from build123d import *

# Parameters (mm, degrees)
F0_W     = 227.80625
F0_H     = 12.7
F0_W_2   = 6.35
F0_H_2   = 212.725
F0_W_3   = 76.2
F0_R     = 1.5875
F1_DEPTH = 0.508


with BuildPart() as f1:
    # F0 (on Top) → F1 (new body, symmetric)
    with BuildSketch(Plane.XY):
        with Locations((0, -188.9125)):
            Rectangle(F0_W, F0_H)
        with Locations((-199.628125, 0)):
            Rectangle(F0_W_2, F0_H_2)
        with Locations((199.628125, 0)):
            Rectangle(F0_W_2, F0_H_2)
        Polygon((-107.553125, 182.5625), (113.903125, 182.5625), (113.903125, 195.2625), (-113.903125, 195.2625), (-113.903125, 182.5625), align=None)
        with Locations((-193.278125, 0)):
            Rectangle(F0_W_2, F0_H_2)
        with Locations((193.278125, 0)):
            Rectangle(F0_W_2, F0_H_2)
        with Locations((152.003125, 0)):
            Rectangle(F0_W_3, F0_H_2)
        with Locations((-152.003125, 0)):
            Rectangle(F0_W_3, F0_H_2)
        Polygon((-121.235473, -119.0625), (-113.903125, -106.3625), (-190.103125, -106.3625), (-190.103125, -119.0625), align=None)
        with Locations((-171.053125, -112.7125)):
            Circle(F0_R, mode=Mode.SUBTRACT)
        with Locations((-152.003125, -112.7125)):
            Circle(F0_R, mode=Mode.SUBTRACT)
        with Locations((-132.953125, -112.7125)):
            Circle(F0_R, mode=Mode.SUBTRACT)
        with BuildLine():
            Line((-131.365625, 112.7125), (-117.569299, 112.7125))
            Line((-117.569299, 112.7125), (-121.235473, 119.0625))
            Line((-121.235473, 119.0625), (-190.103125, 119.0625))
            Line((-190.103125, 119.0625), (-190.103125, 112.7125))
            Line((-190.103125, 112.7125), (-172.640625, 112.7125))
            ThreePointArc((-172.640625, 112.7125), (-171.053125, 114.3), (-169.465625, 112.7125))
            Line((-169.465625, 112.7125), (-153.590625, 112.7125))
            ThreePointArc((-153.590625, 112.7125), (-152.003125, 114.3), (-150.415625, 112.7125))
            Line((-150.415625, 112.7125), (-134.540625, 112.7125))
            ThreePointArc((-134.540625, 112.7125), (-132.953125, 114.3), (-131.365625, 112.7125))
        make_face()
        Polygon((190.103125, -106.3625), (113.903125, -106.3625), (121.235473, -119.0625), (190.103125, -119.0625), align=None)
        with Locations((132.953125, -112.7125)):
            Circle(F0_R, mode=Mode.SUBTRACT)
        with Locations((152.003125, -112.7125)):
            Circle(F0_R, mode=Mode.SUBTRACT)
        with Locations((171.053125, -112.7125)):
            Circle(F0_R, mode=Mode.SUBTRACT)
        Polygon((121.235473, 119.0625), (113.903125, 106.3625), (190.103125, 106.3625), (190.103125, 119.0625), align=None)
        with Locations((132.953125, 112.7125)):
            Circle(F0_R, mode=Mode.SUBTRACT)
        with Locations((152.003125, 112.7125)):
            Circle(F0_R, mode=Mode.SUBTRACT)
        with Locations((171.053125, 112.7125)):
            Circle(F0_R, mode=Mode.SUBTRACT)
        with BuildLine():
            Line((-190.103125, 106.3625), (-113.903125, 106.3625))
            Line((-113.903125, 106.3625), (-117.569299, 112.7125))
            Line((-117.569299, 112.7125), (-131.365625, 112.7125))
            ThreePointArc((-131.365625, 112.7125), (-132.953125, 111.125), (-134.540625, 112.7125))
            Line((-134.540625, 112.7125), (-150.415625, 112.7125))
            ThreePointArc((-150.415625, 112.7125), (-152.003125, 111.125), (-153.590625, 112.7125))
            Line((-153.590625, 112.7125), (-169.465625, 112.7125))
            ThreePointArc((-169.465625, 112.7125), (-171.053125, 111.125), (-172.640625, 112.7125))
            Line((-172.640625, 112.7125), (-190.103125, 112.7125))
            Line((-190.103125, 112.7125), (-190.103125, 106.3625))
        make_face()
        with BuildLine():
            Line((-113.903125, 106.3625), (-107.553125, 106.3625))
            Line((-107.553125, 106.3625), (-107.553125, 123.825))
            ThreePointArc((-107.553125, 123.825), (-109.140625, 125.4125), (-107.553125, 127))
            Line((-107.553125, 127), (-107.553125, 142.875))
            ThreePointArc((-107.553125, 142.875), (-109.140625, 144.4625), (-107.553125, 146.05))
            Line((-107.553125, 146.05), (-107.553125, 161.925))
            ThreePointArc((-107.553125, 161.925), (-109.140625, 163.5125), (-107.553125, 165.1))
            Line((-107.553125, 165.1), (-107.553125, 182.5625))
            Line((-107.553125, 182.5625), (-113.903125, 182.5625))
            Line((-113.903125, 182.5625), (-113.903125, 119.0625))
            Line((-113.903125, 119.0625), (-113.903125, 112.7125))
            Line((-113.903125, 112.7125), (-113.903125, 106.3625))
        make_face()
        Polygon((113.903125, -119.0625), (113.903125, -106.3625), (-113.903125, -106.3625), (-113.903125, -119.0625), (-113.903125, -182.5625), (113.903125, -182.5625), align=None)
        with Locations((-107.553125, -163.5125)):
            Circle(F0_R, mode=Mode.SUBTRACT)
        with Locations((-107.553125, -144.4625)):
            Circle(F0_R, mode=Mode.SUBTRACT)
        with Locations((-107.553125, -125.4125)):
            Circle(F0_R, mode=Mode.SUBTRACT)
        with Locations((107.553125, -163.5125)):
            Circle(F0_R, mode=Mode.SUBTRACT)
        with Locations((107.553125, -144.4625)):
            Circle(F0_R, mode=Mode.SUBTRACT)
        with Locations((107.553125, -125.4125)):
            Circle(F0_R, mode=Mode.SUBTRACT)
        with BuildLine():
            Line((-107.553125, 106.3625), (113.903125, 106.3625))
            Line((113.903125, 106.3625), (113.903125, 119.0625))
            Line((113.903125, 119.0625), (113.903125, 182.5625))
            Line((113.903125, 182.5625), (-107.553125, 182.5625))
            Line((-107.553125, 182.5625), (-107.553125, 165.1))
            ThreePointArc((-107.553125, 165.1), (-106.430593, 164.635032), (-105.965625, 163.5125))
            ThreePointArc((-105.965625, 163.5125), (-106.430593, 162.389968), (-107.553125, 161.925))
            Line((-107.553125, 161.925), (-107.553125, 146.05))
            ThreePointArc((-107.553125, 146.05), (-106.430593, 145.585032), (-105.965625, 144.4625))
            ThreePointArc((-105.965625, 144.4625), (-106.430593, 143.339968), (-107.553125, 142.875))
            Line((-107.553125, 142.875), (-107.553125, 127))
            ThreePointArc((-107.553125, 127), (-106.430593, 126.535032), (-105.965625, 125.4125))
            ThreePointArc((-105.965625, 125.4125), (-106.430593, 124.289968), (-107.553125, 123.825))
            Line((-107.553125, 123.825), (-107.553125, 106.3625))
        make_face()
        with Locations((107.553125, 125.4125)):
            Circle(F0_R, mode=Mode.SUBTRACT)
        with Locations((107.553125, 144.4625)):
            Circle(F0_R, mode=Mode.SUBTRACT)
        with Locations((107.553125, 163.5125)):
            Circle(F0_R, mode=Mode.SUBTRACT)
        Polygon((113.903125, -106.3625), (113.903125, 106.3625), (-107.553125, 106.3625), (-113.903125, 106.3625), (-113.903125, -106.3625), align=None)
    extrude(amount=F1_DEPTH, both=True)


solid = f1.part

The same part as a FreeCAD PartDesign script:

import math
import FreeCAD as App
import Part
import Sketcher
Q = App.Units.Quantity

doc = App.newDocument("Part")
body = doc.addObject("PartDesign::Body", "Body")

sketch1 = body.newObject("Sketcher::SketchObject", "Sketch")
sketch1.AttachmentSupport = (doc.getObject("XY_Plane"), [""])
sketch1.MapMode = "FlatFace"
sketch1.addGeometry(Part.LineSegment(App.Vector(-113.9, -195.3, 0), App.Vector(113.9, -195.3, 0)), False)
sketch1.addGeometry(Part.LineSegment(App.Vector(113.9, -195.3, 0), App.Vector(113.9, -106.4, 0)), False)
sketch1.addGeometry(Part.LineSegment(App.Vector(113.9, -106.4, 0), App.Vector(121.2, -119.1, 0)), False)
sketch1.addGeometry(Part.LineSegment(App.Vector(121.2, -119.1, 0), App.Vector(190.1, -119.1, 0)), False)
sketch1.addGeometry(Part.LineSegment(App.Vector(190.1, -119.1, 0), App.Vector(190.1, -106.4, 0)), False)
sketch1.addGeometry(Part.LineSegment(App.Vector(190.1, -106.4, 0), App.Vector(202.8, -106.4, 0)), False)
sketch1.addGeometry(Part.LineSegment(App.Vector(202.8, -106.4, 0), App.Vector(202.8, 106.4, 0)), False)
sketch1.addGeometry(Part.LineSegment(App.Vector(202.8, 106.4, 0), App.Vector(190.1, 106.4, 0)), False)
sketch1.addGeometry(Part.LineSegment(App.Vector(190.1, 106.4, 0), App.Vector(190.1, 119.1, 0)), False)
sketch1.addGeometry(Part.LineSegment(App.Vector(190.1, 119.1, 0), App.Vector(121.2, 119.1, 0)), False)
sketch1.addGeometry(Part.LineSegment(App.Vector(121.2, 119.1, 0), App.Vector(113.9, 106.4, 0)), False)
sketch1.addGeometry(Part.LineSegment(App.Vector(113.9, 106.4, 0), App.Vector(113.9, 195.3, 0)), False)
sketch1.addGeometry(Part.LineSegment(App.Vector(113.9, 195.3, 0), App.Vector(-113.9, 195.3, 0)), False)
sketch1.addGeometry(Part.LineSegment(App.Vector(-113.9, 195.3, 0), App.Vector(-113.9, 106.4, 0)), False)
sketch1.addGeometry(Part.LineSegment(App.Vector(-113.9, 106.4, 0), App.Vector(-121.2, 119.1, 0)), False)
sketch1.addGeometry(Part.LineSegment(App.Vector(-121.2, 119.1, 0), App.Vector(-190.1, 119.1, 0)), False)
sketch1.addGeometry(Part.LineSegment(App.Vector(-190.1, 119.1, 0), App.Vector(-190.1, 106.4, 0)), False)
sketch1.addGeometry(Part.LineSegment(App.Vector(-190.1, 106.4, 0), App.Vector(-202.8, 106.4, 0)), False)
sketch1.addGeometry(Part.LineSegment(App.Vector(-202.8, 106.4, 0), App.Vector(-202.8, -106.4, 0)), False)
sketch1.addGeometry(Part.LineSegment(App.Vector(-202.8, -106.4, 0), App.Vector(-190.1, -106.4, 0)), False)
sketch1.addGeometry(Part.LineSegment(App.Vector(-190.1, -106.4, 0), App.Vector(-190.1, -119.1, 0)), False)
sketch1.addGeometry(Part.LineSegment(App.Vector(-190.1, -119.1, 0), App.Vector(-121.2, -119.1, 0)), False)
sketch1.addGeometry(Part.LineSegment(App.Vector(-121.2, -119.1, 0), App.Vector(-113.9, -106.4, 0)), False)
sketch1.addGeometry(Part.LineSegment(App.Vector(-113.9, -106.4, 0), App.Vector(-113.9, -195.3, 0)), False)
sketch1.addGeometry(Part.Circle(App.Vector(-107.6, -163.5, 0), App.Vector(0, 0, 1), 1.6), False)
sketch1.addGeometry(Part.Circle(App.Vector(-107.6, -144.5, 0), App.Vector(0, 0, 1), 1.6), False)
sketch1.addGeometry(Part.Circle(App.Vector(107.6, -163.5, 0), App.Vector(0, 0, 1), 1.6), False)
sketch1.addGeometry(Part.Circle(App.Vector(107.6, -144.5, 0), App.Vector(0, 0, 1), 1.6), False)
sketch1.addGeometry(Part.Circle(App.Vector(-107.6, -125.4, 0), App.Vector(0, 0, 1), 1.6), False)
sketch1.addGeometry(Part.Circle(App.Vector(107.6, -125.4, 0), App.Vector(0, 0, 1), 1.6), False)
sketch1.addGeometry(Part.Circle(App.Vector(171.1, 112.7, 0), App.Vector(0, 0, 1), 1.6), False)
sketch1.addGeometry(Part.Circle(App.Vector(133, -112.7, 0), App.Vector(0, 0, 1), 1.6), False)
sketch1.addGeometry(Part.Circle(App.Vector(152, -112.7, 0), App.Vector(0, 0, 1), 1.6), False)
sketch1.addGeometry(Part.Circle(App.Vector(171.1, -112.7, 0), App.Vector(0, 0, 1), 1.6), False)
sketch1.addGeometry(Part.Circle(App.Vector(133, 112.7, 0), App.Vector(0, 0, 1), 1.6), False)
sketch1.addGeometry(Part.Circle(App.Vector(152, 112.7, 0), App.Vector(0, 0, 1), 1.6), False)
sketch1.addGeometry(Part.Circle(App.Vector(107.6, 144.5, 0), App.Vector(0, 0, 1), 1.6), False)
sketch1.addGeometry(Part.Circle(App.Vector(107.6, 163.5, 0), App.Vector(0, 0, 1), 1.6), False)
sketch1.addGeometry(Part.ArcOfCircle(Part.Circle(App.Vector(-107.6, 125.4, 0), App.Vector(0, 0, 1), 1.6), math.radians(90), math.radians(270)), False)
sketch1.addGeometry(Part.ArcOfCircle(Part.Circle(App.Vector(-107.6, 125.4, 0), App.Vector(0, 0, 1), 1.6), math.radians(0), math.radians(90)), False)
sketch1.addGeometry(Part.ArcOfCircle(Part.Circle(App.Vector(-107.6, 125.4, 0), App.Vector(0, 0, 1), 1.6), math.radians(-90), math.radians(0)), False)
sketch1.addGeometry(Part.Circle(App.Vector(107.6, 125.4, 0), App.Vector(0, 0, 1), 1.6), False)
sketch1.addGeometry(Part.ArcOfCircle(Part.Circle(App.Vector(-107.6, 144.5, 0), App.Vector(0, 0, 1), 1.6), math.radians(90), math.radians(270)), False)
sketch1.addGeometry(Part.ArcOfCircle(Part.Circle(App.Vector(-107.6, 144.5, 0), App.Vector(0, 0, 1), 1.6), math.radians(0), math.radians(90)), False)
sketch1.addGeometry(Part.ArcOfCircle(Part.Circle(App.Vector(-107.6, 144.5, 0), App.Vector(0, 0, 1), 1.6), math.radians(-90), math.radians(0)), False)
sketch1.addGeometry(Part.ArcOfCircle(Part.Circle(App.Vector(-107.6, 163.5, 0), App.Vector(0, 0, 1), 1.6), math.radians(90), math.radians(270)), False)
sketch1.addGeometry(Part.ArcOfCircle(Part.Circle(App.Vector(-107.6, 163.5, 0), App.Vector(0, 0, 1), 1.6), math.radians(0), math.radians(90)), False)
sketch1.addGeometry(Part.ArcOfCircle(Part.Circle(App.Vector(-107.6, 163.5, 0), App.Vector(0, 0, 1), 1.6), math.radians(-90), math.radians(0)), False)
sketch1.addGeometry(Part.Circle(App.Vector(-171.1, 112.7, 0), App.Vector(0, 0, 1), 1.6), False)
sketch1.addGeometry(Part.Circle(App.Vector(-171.1, -112.7, 0), App.Vector(0, 0, 1), 1.6), False)
sketch1.addGeometry(Part.Circle(App.Vector(-152, -112.7, 0), App.Vector(0, 0, 1), 1.6), False)
sketch1.addGeometry(Part.Circle(App.Vector(-133, -112.7, 0), App.Vector(0, 0, 1), 1.6), False)
sketch1.addGeometry(Part.Circle(App.Vector(-133, 112.7, 0), App.Vector(0, 0, 1), 1.6), False)
sketch1.addGeometry(Part.Circle(App.Vector(-152, 112.7, 0), App.Vector(0, 0, 1), 1.6), False)
sketch1.addConstraint(Sketcher.Constraint("Coincident", 0, 2, 1, 1))
sketch1.addConstraint(Sketcher.Constraint("Coincident", 1, 2, 2, 1))
sketch1.addConstraint(Sketcher.Constraint("Coincident", 2, 2, 3, 1))
sketch1.addConstraint(Sketcher.Constraint("Coincident", 3, 2, 4, 1))
sketch1.addConstraint(Sketcher.Constraint("Coincident", 4, 2, 5, 1))
sketch1.addConstraint(Sketcher.Constraint("Coincident", 5, 2, 6, 1))
sketch1.addConstraint(Sketcher.Constraint("Coincident", 6, 2, 7, 1))
sketch1.addConstraint(Sketcher.Constraint("Coincident", 7, 2, 8, 1))
sketch1.addConstraint(Sketcher.Constraint("Coincident", 8, 2, 9, 1))
sketch1.addConstraint(Sketcher.Constraint("Coincident", 9, 2, 10, 1))
sketch1.addConstraint(Sketcher.Constraint("Coincident", 10, 2, 11, 1))
sketch1.addConstraint(Sketcher.Constraint("Coincident", 11, 2, 12, 1))
sketch1.addConstraint(Sketcher.Constraint("Coincident", 12, 2, 13, 1))
sketch1.addConstraint(Sketcher.Constraint("Coincident", 13, 2, 14, 1))
sketch1.addConstraint(Sketcher.Constraint("Coincident", 14, 2, 15, 1))
sketch1.addConstraint(Sketcher.Constraint("Coincident", 15, 2, 16, 1))
sketch1.addConstraint(Sketcher.Constraint("Coincident", 16, 2, 17, 1))
sketch1.addConstraint(Sketcher.Constraint("Coincident", 17, 2, 18, 1))
sketch1.addConstraint(Sketcher.Constraint("Coincident", 18, 2, 19, 1))
sketch1.addConstraint(Sketcher.Constraint("Coincident", 19, 2, 20, 1))
sketch1.addConstraint(Sketcher.Constraint("Coincident", 20, 2, 21, 1))
sketch1.addConstraint(Sketcher.Constraint("Coincident", 21, 2, 22, 1))
sketch1.addConstraint(Sketcher.Constraint("Coincident", 22, 2, 23, 1))
sketch1.addConstraint(Sketcher.Constraint("Coincident", 23, 2, 0, 1))
sketch1.addConstraint(Sketcher.Constraint("Tangent", 38, 1, 39, 2))
sketch1.addConstraint(Sketcher.Constraint("Tangent", 39, 1, 40, 2))
sketch1.addConstraint(Sketcher.Constraint("Tangent", 40, 1, 38, 2))
sketch1.addConstraint(Sketcher.Constraint("Tangent", 42, 1, 43, 2))
sketch1.addConstraint(Sketcher.Constraint("Tangent", 43, 1, 44, 2))
sketch1.addConstraint(Sketcher.Constraint("Tangent", 44, 1, 42, 2))
sketch1.addConstraint(Sketcher.Constraint("Tangent", 45, 1, 46, 2))
sketch1.addConstraint(Sketcher.Constraint("Tangent", 46, 1, 47, 2))
sketch1.addConstraint(Sketcher.Constraint("Tangent", 47, 1, 45, 2))
sketch1.addConstraint(Sketcher.Constraint("Horizontal", 0))
sketch1.addConstraint(Sketcher.Constraint("Vertical", 1))
sketch1.addConstraint(Sketcher.Constraint("Horizontal", 3))
sketch1.addConstraint(Sketcher.Constraint("Vertical", 4))
sketch1.addConstraint(Sketcher.Constraint("Horizontal", 5))
sketch1.addConstraint(Sketcher.Constraint("Vertical", 6))
sketch1.addConstraint(Sketcher.Constraint("Horizontal", 7))
sketch1.addConstraint(Sketcher.Constraint("Vertical", 8))
sketch1.addConstraint(Sketcher.Constraint("Horizontal", 9))
sketch1.addConstraint(Sketcher.Constraint("Vertical", 11))
sketch1.addConstraint(Sketcher.Constraint("Horizontal", 12))
sketch1.addConstraint(Sketcher.Constraint("Vertical", 13))
sketch1.addConstraint(Sketcher.Constraint("Horizontal", 15))
sketch1.addConstraint(Sketcher.Constraint("Vertical", 16))
sketch1.addConstraint(Sketcher.Constraint("Horizontal", 17))
sketch1.addConstraint(Sketcher.Constraint("Vertical", 18))
sketch1.addConstraint(Sketcher.Constraint("Horizontal", 19))
sketch1.addConstraint(Sketcher.Constraint("Vertical", 20))
sketch1.addConstraint(Sketcher.Constraint("Horizontal", 21))
sketch1.addConstraint(Sketcher.Constraint("Vertical", 23))
sketch1.addConstraint(Sketcher.Constraint("Equal", 24, 25))
sketch1.addConstraint(Sketcher.Constraint("Equal", 25, 26))
sketch1.addConstraint(Sketcher.Constraint("Equal", 26, 27))
sketch1.addConstraint(Sketcher.Constraint("Equal", 27, 28))
sketch1.addConstraint(Sketcher.Constraint("Equal", 28, 29))
sketch1.addConstraint(Sketcher.Constraint("Equal", 29, 30))
sketch1.addConstraint(Sketcher.Constraint("Equal", 30, 31))
sketch1.addConstraint(Sketcher.Constraint("Equal", 31, 32))
sketch1.addConstraint(Sketcher.Constraint("Equal", 32, 33))
sketch1.addConstraint(Sketcher.Constraint("Equal", 33, 34))
sketch1.addConstraint(Sketcher.Constraint("Equal", 34, 35))
sketch1.addConstraint(Sketcher.Constraint("Equal", 35, 36))
sketch1.addConstraint(Sketcher.Constraint("Equal", 36, 37))
sketch1.addConstraint(Sketcher.Constraint("Equal", 37, 38))
sketch1.addConstraint(Sketcher.Constraint("Equal", 40, 41))
sketch1.addConstraint(Sketcher.Constraint("Equal", 41, 42))
sketch1.addConstraint(Sketcher.Constraint("Equal", 44, 45))
sketch1.addConstraint(Sketcher.Constraint("Equal", 47, 48))
sketch1.addConstraint(Sketcher.Constraint("Equal", 48, 49))
sketch1.addConstraint(Sketcher.Constraint("Equal", 49, 50))
sketch1.addConstraint(Sketcher.Constraint("Equal", 50, 51))
sketch1.addConstraint(Sketcher.Constraint("Equal", 51, 52))
sketch1.addConstraint(Sketcher.Constraint("Equal", 52, 53))
sketch1.addConstraint(Sketcher.Constraint("Symmetric", 25, 3, 36, 3, -1, 1))
sketch1.addConstraint(Sketcher.Constraint("Symmetric", 24, 3, 37, 3, -1, 1))
sketch1.addConstraint(Sketcher.Constraint("Symmetric", 29, 3, 38, 3, -1, 1))
sketch1.addConstraint(Sketcher.Constraint("Symmetric", 28, 3, 41, 3, -1, 1))
sketch1.addConstraint(Sketcher.Constraint("Symmetric", 27, 3, 42, 3, -1, 1))
sketch1.addConstraint(Sketcher.Constraint("Symmetric", 26, 3, 45, 3, -1, 1))
sketch1.addConstraint(Sketcher.Constraint("Symmetric", 33, 3, 48, 3, -1, 1))
sketch1.addConstraint(Sketcher.Constraint("Symmetric", 30, 3, 49, 3, -1, 1))
sketch1.addConstraint(Sketcher.Constraint("Symmetric", 35, 3, 50, 3, -1, 1))
sketch1.addConstraint(Sketcher.Constraint("Symmetric", 34, 3, 51, 3, -1, 1))
sketch1.addConstraint(Sketcher.Constraint("Symmetric", 31, 3, 52, 3, -1, 1))
sketch1.addConstraint(Sketcher.Constraint("Symmetric", 32, 3, 53, 3, -1, 1))
sketch1.addConstraint(Sketcher.Constraint("Symmetric", 0, 2, 12, 2, -1, 1))
sketch1.addConstraint(Sketcher.Constraint("Symmetric", 2, 2, 14, 2, -1, 1))
sketch1.addConstraint(Sketcher.Constraint("Symmetric", 4, 2, 16, 2, -1, 1))
sketch1.addConstraint(Sketcher.Constraint("Symmetric", 6, 2, 18, 2, -1, 1))
sketch1.addConstraint(Sketcher.Constraint("Symmetric", 8, 2, 20, 2, -1, 1))
sketch1.addConstraint(Sketcher.Constraint("Symmetric", 10, 2, 22, 2, -1, 1))
sketch1.addConstraint(Sketcher.Constraint("Symmetric", 24, 3, 26, 3, -2))
sketch1.addConstraint(Sketcher.Constraint("Symmetric", 25, 3, 27, 3, -2))
sketch1.addConstraint(Sketcher.Constraint("Symmetric", 28, 3, 29, 3, -2))
sketch1.addConstraint(Sketcher.Constraint("Symmetric", 30, 3, 48, 3, -2))
sketch1.addConstraint(Sketcher.Constraint("Symmetric", 32, 3, 50, 3, -2))
sketch1.addConstraint(Sketcher.Constraint("Symmetric", 31, 3, 51, 3, -2))
sketch1.addConstraint(Sketcher.Constraint("Symmetric", 10, 2, 13, 2, -2))
sketch1.addConstraint(Sketcher.Constraint("Symmetric", 9, 2, 14, 2, -2))
sketch1.addConstraint(Sketcher.Constraint("Symmetric", 7, 2, 16, 2, -2))
sketch1.addConstraint(Sketcher.Constraint("Parallel", 2, 14))
sketch1.addConstraint(Sketcher.Constraint("Parallel", 10, 22))
sketch1.addConstraint(Sketcher.Constraint("Horizontal", 31, 3, 32, 3))
sketch1.addConstraint(Sketcher.Constraint("Horizontal", 32, 3, 33, 3))
sketch1.addConstraint(Sketcher.Constraint("Horizontal", 1, 2, 4, 2))
sketch1.addConstraint(Sketcher.Constraint("Horizontal", 41, 3, 39, 1))
sketch1.addConstraint(Sketcher.Constraint("Horizontal", 44, 3, 43, 1))
sketch1.addConstraint(Sketcher.Constraint("Horizontal", 47, 3, 46, 1))
sketch1.addConstraint(Sketcher.Constraint("Vertical", 24, 3, 25, 3))
sketch1.addConstraint(Sketcher.Constraint("Vertical", 25, 3, 28, 3))
sketch1.addConstraint(Sketcher.Constraint("Vertical", 47, 3, 38, 1))
sketch1.addConstraint(Sketcher.Constraint("Vertical", 38, 1, 40, 1))
sketch1.addConstraint(Sketcher.Constraint("Vertical", 40, 1, 42, 1))
sketch1.addConstraint(Sketcher.Constraint("Vertical", 42, 1, 44, 1))
sketch1.addConstraint(Sketcher.Constraint("Vertical", 44, 1, 45, 1))
sketch1.addConstraint(Sketcher.Constraint("Vertical", 45, 1, 47, 1))
sketch1.addConstraint(Sketcher.Constraint("Equal", 19, 4))
sketch1.addConstraint(Sketcher.Constraint("Diameter", 24, Q("0.125 in")))
sketch1.addConstraint(Sketcher.Constraint("DistanceX", 5, 1, 5, 2, Q("0.5 in")))
sketch1.addConstraint(Sketcher.Constraint("DistanceY", 1, 1, 1, 2, Q("3.5 in")))
sketch1.addConstraint(Sketcher.Constraint("DistanceY", -1, 1, 38, 1, Q("5 in")))
sketch1.addConstraint(Sketcher.Constraint("Angle", 2, Q("-60.000001 deg")))
sketch1.addConstraint(Sketcher.Constraint("DistanceY", -1, 1, 45, 1, Q("6.5 in")))
sketch1.addConstraint(Sketcher.Constraint("DistanceX", 0, 1, 0, 2, Q("8.96875 in")))
sketch1.addConstraint(Sketcher.Constraint("DistanceY", 6, 1, 6, 2, Q("8.375 in")))
sketch1.addConstraint(Sketcher.Constraint("DistanceY", -1, 1, 42, 1, Q("5.75 in")))
sketch1.addConstraint(Sketcher.Constraint("DistanceX", 24, 3, -1, 1, Q("4.234375 in")))
sketch1.addConstraint(Sketcher.Constraint("DistanceX", -1, 1, 30, 3, Q("6.734375 in")))
sketch1.addConstraint(Sketcher.Constraint("DistanceY", -1, 1, 30, 3, Q("4.4375 in")))
sketch1.addConstraint(Sketcher.Constraint("DistanceX", -1, 1, 31, 3, Q("5.234375 in")))
sketch1.addConstraint(Sketcher.Constraint("DistanceX", -1, 1, 32, 3, Q("5.984375 in")))
sketch1.addConstraint(Sketcher.Constraint("DistanceX", -1, 1, 3, 2, Q("7.484375 in")))
pad1 = body.newObject("PartDesign::Pad", "Pad")
pad1.Profile = sketch1
pad1.Length = Q("0.04 in")
pad1.Midplane = True

doc.recompute()
